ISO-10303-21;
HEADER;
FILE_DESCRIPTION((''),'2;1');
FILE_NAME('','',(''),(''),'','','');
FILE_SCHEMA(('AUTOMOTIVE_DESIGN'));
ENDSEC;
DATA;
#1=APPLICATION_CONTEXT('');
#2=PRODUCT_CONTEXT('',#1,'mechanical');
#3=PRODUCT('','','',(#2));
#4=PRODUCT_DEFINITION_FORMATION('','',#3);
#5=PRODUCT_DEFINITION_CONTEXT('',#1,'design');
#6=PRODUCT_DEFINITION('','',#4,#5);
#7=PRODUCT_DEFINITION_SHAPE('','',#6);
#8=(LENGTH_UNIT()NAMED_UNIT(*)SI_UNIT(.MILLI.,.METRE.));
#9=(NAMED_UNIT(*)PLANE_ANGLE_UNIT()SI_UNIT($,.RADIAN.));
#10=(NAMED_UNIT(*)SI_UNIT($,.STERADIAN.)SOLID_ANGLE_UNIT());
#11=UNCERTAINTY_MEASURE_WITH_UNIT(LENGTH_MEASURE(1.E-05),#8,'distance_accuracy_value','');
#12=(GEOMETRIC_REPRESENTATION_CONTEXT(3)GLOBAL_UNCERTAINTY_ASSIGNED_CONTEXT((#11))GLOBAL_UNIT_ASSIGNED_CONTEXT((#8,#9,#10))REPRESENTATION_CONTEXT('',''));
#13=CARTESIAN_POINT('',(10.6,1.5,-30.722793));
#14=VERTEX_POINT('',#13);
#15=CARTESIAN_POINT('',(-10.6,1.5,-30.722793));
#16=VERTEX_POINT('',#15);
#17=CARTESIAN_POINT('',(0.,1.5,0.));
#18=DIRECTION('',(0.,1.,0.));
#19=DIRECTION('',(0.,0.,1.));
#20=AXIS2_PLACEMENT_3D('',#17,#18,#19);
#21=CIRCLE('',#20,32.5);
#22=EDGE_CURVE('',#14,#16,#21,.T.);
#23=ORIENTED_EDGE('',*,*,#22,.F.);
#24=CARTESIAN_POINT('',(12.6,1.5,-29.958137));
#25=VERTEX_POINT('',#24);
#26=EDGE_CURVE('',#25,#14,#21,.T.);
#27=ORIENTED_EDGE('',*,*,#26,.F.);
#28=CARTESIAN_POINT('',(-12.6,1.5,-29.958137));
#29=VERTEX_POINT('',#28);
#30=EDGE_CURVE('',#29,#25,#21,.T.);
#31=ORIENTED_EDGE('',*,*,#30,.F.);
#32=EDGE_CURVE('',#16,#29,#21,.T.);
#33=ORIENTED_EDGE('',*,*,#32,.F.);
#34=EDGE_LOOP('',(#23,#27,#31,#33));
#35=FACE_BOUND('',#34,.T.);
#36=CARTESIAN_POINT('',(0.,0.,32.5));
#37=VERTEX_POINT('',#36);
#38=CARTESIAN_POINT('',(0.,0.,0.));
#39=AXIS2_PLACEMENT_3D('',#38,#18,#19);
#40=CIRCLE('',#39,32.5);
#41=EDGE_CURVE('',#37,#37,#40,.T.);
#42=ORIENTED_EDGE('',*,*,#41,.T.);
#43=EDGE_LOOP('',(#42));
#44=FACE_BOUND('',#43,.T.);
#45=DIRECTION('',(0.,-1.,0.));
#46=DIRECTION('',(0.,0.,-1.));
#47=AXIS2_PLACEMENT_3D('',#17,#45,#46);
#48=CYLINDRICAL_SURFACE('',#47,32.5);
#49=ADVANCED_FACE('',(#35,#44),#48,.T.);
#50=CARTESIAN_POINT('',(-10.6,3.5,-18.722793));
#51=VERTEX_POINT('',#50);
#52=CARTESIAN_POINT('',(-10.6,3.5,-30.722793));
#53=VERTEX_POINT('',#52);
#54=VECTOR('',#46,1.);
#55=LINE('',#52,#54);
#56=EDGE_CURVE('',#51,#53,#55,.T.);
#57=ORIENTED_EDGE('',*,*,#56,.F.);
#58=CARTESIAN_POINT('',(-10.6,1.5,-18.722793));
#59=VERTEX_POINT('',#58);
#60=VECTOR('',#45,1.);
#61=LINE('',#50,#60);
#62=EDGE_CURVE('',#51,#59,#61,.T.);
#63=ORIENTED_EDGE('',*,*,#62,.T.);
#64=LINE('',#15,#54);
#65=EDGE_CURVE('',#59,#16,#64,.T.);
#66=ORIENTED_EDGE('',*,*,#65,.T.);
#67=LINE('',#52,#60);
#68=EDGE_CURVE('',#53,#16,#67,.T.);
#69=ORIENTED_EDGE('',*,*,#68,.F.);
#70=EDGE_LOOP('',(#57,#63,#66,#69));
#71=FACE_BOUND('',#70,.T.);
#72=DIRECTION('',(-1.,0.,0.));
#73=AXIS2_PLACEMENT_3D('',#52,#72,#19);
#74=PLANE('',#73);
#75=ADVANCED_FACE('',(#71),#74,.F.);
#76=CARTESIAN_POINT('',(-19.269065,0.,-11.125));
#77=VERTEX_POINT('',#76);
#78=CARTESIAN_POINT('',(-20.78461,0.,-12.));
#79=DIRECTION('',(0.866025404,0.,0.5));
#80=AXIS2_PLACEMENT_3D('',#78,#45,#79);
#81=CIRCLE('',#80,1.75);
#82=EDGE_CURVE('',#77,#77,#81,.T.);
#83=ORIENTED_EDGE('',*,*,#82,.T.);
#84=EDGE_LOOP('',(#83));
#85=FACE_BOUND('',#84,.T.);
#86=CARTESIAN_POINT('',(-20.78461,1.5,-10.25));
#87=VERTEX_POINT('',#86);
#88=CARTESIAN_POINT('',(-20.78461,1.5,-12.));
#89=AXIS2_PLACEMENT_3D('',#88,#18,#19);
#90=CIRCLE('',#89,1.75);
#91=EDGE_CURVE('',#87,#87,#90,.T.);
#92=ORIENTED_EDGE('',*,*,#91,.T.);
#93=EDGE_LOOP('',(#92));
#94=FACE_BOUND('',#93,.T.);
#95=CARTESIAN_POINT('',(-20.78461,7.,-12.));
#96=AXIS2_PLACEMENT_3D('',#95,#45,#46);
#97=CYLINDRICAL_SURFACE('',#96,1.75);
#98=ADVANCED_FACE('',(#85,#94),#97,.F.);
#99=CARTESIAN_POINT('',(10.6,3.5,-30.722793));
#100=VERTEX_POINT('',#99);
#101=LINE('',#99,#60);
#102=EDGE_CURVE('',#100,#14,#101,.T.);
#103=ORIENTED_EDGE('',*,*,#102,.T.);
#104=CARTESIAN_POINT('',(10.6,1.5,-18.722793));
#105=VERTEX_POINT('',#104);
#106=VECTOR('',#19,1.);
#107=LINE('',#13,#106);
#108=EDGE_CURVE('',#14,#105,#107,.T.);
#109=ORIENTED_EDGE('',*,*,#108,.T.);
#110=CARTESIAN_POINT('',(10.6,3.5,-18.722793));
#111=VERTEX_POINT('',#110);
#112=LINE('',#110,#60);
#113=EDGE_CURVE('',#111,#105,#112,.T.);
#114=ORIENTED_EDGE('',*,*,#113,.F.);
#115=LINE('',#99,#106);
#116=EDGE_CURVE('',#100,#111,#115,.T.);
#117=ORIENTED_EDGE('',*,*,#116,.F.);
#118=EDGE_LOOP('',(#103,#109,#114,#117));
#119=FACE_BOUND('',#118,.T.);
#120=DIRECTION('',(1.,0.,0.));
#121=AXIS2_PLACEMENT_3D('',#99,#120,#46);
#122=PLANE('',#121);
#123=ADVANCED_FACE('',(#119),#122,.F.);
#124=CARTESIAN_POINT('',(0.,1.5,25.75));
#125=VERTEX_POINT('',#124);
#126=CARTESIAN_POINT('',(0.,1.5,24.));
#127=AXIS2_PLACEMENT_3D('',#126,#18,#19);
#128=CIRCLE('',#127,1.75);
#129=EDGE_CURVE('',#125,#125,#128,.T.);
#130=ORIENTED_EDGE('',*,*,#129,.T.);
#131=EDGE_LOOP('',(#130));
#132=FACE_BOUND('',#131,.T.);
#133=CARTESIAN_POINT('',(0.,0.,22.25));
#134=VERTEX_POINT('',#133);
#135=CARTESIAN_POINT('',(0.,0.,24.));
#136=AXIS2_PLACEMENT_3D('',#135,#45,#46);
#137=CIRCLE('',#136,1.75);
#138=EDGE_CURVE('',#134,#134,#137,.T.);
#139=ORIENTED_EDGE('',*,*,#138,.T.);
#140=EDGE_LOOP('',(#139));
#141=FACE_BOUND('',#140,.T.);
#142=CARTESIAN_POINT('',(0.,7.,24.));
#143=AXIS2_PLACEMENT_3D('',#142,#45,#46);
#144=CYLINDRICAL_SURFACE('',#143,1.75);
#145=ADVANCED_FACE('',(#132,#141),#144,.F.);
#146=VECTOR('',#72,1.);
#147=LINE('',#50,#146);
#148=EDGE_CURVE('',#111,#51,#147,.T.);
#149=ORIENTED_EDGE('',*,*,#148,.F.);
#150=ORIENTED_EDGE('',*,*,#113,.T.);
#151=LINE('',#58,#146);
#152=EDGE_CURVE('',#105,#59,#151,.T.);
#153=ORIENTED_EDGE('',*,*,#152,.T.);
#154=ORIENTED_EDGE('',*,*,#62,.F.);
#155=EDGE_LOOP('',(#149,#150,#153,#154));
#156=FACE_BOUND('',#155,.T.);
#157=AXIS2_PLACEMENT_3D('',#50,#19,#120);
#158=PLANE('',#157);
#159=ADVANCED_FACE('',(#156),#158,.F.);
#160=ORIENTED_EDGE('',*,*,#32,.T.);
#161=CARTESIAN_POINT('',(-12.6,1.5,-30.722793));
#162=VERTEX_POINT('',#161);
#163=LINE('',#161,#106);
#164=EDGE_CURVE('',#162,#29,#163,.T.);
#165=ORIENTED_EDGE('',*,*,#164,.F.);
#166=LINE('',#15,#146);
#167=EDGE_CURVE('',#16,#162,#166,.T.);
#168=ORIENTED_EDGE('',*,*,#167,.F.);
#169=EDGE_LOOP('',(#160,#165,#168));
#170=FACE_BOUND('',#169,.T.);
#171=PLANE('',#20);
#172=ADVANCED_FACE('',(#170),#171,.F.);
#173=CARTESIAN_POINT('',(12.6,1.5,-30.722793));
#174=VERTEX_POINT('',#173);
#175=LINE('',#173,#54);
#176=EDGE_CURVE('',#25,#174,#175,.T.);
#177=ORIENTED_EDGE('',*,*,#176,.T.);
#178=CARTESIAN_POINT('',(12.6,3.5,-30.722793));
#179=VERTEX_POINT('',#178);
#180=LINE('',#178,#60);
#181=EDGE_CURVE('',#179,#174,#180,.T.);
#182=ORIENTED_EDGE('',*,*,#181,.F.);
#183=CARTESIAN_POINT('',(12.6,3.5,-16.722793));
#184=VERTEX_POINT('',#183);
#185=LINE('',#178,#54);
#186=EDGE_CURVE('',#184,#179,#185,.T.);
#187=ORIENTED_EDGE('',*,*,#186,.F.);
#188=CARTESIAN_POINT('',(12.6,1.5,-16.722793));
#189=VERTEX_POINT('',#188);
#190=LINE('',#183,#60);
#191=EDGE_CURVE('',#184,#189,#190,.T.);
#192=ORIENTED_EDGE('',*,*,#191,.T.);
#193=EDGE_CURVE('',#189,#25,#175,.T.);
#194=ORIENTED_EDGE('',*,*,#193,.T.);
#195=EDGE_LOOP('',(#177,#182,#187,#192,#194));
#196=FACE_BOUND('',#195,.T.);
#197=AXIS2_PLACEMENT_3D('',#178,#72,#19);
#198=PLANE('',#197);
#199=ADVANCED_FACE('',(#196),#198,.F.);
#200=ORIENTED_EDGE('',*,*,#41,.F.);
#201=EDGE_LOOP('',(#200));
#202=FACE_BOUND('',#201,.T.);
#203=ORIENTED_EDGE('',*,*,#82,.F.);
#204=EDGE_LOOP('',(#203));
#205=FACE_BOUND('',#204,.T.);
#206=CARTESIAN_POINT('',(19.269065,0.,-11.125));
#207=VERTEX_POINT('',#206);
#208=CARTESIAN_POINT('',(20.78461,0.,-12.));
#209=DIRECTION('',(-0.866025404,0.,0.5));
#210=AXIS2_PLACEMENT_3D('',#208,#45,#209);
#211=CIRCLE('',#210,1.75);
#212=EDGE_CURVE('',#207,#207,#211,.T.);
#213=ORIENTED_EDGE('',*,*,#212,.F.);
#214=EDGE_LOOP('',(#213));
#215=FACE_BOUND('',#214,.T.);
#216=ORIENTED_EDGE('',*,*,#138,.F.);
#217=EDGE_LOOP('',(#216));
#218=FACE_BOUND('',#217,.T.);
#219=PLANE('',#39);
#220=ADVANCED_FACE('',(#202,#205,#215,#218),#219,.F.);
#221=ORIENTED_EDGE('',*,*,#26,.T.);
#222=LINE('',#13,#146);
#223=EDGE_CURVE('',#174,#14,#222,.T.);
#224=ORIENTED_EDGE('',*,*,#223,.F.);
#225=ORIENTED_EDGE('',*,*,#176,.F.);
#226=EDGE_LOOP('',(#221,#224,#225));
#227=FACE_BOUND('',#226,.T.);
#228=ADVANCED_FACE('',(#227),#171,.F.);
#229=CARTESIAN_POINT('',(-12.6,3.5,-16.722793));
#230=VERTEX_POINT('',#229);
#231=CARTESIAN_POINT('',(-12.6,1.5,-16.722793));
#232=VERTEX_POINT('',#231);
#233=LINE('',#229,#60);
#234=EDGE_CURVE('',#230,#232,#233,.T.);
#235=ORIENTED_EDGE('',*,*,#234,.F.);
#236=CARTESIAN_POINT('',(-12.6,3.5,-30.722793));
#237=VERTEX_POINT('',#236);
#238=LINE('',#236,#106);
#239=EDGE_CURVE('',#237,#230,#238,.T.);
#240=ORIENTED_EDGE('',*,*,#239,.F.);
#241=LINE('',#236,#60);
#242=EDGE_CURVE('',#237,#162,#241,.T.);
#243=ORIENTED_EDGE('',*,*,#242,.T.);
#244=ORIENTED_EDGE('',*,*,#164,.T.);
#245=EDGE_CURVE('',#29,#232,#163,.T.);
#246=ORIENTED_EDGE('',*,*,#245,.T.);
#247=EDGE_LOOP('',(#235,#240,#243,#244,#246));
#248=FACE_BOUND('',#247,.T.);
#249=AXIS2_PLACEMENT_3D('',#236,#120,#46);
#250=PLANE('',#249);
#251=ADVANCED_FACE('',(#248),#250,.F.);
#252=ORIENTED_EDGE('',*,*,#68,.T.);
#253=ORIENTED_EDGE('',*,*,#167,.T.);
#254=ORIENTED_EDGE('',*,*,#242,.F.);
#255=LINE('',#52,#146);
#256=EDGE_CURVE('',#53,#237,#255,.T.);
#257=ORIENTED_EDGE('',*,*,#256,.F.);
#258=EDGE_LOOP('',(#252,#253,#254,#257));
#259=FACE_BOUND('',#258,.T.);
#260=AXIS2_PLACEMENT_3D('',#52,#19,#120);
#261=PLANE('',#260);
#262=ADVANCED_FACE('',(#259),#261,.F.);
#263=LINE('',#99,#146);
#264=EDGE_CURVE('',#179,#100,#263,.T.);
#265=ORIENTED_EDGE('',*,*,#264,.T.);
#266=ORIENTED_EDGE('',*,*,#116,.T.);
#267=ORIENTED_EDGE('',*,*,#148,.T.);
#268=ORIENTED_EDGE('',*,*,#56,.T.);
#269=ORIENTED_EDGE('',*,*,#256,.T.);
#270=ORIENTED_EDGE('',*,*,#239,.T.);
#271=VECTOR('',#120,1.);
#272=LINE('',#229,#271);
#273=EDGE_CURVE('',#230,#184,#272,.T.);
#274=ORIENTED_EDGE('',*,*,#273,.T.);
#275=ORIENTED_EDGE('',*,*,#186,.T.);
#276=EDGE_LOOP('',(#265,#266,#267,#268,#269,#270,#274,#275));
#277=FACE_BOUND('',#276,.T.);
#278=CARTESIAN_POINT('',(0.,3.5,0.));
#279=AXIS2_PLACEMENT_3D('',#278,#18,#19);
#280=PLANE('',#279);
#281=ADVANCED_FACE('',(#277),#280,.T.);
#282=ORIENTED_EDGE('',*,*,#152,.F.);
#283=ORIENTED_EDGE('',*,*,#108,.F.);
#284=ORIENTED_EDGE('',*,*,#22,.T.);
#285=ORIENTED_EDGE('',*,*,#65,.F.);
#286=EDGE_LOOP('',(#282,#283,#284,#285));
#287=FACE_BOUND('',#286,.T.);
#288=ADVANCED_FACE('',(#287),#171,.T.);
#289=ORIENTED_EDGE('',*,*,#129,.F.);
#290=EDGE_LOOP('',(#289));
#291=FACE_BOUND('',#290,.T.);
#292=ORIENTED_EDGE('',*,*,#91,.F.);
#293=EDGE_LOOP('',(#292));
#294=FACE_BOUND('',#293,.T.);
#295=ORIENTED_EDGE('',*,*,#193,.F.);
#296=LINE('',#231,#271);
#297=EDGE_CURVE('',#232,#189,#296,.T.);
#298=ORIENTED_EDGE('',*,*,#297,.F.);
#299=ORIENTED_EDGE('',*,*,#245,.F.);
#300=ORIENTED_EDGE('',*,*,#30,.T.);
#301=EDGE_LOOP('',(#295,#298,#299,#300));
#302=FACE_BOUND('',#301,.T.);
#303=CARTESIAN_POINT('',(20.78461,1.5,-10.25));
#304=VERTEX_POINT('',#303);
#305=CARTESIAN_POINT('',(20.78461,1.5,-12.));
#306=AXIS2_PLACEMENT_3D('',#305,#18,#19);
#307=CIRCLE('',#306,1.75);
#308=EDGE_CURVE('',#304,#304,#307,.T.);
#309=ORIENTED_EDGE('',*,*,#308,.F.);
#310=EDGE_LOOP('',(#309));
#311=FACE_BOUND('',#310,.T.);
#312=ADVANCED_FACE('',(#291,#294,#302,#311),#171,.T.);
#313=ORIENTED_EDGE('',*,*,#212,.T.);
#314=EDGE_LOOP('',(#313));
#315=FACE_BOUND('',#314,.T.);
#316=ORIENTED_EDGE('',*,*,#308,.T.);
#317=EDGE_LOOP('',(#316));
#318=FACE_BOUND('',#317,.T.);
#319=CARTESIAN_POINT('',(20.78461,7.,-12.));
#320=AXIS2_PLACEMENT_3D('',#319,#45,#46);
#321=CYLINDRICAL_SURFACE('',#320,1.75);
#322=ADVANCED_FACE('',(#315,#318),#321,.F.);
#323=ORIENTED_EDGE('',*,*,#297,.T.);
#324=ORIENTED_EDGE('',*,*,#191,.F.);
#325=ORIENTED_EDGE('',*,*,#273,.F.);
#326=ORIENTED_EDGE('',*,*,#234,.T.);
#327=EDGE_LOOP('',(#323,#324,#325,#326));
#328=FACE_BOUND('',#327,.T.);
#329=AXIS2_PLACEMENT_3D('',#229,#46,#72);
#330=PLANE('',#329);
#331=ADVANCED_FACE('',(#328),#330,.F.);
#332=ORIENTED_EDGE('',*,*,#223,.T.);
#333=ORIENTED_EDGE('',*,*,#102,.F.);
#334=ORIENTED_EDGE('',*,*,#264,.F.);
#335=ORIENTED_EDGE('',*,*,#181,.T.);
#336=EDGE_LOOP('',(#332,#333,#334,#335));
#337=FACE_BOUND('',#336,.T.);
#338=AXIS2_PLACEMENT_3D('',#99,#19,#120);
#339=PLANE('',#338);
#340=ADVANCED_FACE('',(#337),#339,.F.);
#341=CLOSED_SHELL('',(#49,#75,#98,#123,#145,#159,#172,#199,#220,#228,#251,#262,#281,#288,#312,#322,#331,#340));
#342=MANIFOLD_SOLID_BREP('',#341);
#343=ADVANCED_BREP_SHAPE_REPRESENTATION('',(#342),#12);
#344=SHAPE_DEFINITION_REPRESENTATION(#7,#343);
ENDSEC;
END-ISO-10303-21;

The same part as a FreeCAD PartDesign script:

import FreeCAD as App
import Part
import Sketcher
from FreeCAD import Vector


def add_polygon(sketch, points):
    """Adds a closed chain of lines whose ends are joined by coincident constraints."""
    first, n = sketch.GeometryCount, len(points)
    for a, b in zip(points, points[1:] + points[:1]):
        sketch.addGeometry(Part.LineSegment(App.Vector(*a, 0), App.Vector(*b, 0)), False)
    for i in range(n):
        sketch.addConstraint(Sketcher.Constraint("Coincident", first + i, 2, first + (i + 1) % n, 1))

doc = App.newDocument("Part")
params = doc.addObject("Spreadsheet::Sheet", "Params")
for row, (alias, value) in enumerate([
    ("sketch1_diameter", "65 mm"),
    ("pad1_length", "1.5 mm"),
    ("sketch2_width", "2 mm"),
    ("sketch2_height", "14 mm"),
    ("sketch2_height2", "12 mm"),
    ("sketch2_width2", "25.2 mm"),
    ("pad2_length", "2 mm"),
    ("sketch3_diameter", "3.5 mm"),
    ("pocket1_length", "7 mm"),
], start=1):
    params.set(f"A{row}", alias)
    params.set(f"B{row}", "=" + value)
    params.setAlias(f"B{row}", alias)

body = doc.addObject("PartDesign::Body", "Body")

# Sketch on XZ plane
sketch1 = body.newObject("Sketcher::SketchObject", "Sketch")
sketch1.AttachmentSupport = (doc.getObject("XZ_Plane"), [""])
sketch1.MapMode = "FlatFace"
sketch1.addGeometry(Part.Circle(Vector(0, 0, 0), Vector(0, 0, 1), 32), False)
sketch1.addConstraint([
    Sketcher.Constraint("Coincident", 0, 3, -1, 1),
    Sketcher.Constraint("Diameter", 0, 65.0),
])
sketch1.setExpression("Constraints[1]", "Params.sketch1_diameter")
pad1 = body.newObject("PartDesign::Pad", "Pad")
pad1.Profile = sketch1
pad1.setExpression("Length", "Params.pad1_length")
pad1.Reversed = True

# Sketch on XZ plane
sketch2 = body.newObject("Sketcher::SketchObject", "Sketch001")
sketch2.AttachmentSupport = (doc.getObject("XZ_Plane"), [""])
sketch2.MapMode = "FlatFace"
sketch2.AttachmentOffset = App.Placement(Vector(0, 0, -1.5), App.Rotation())
add_polygon(sketch2, [(-12.6, -30.7), (-12.6, -16.7), (12.6, -16.7), (12.6, -30.7), (10.6, -30.7), (10.6, -18.7), (-10.6, -18.7), (-10.6, -30.7)])  # lines 0-7
sketch2.addConstraint([
    Sketcher.Constraint("Vertical", 0),
    Sketcher.Constraint("Horizontal", 1),
    Sketcher.Constraint("Vertical", 2),
    Sketcher.Constraint("Horizontal", 3),
    Sketcher.Constraint("Vertical", 4),
    Sketcher.Constraint("Horizontal", 5),
    Sketcher.Constraint("Vertical", 6),
    Sketcher.Constraint("Horizontal", 7),
    Sketcher.Constraint("Symmetric", 3, 2, 6, 2, -2),
    Sketcher.Constraint("Equal", 3, 7),
    Sketcher.Constraint("DistanceX", 3, 2, 3, 1, 2.0),
    Sketcher.Constraint("DistanceY", 0, 1, 0, 2, 14.0),
    Sketcher.Constraint("DistanceY", 4, 1, 4, 2, 12.0),
    Sketcher.Constraint("DistanceX", 1, 1, 1, 2, 25.2),
    Sketcher.Constraint("DistanceY", 0, 2, -1, 1, 16.722793),
])
sketch2.setExpression("Constraints[18]", "Params.sketch2_width")
sketch2.setExpression("Constraints[19]", "Params.sketch2_height")
sketch2.setExpression("Constraints[20]", "Params.sketch2_height2")
sketch2.setExpression("Constraints[21]", "Params.sketch2_width2")
pad2 = body.newObject("PartDesign::Pad", "Pad001")
pad2.Profile = sketch2
pad2.setExpression("Length", "Params.pad2_length")
pad2.Reversed = True

# Sketch on XZ plane
sketch3 = body.newObject("Sketcher::SketchObject", "Sketch002")
sketch3.AttachmentSupport = (doc.getObject("XZ_Plane"), [""])
sketch3.MapMode = "FlatFace"
sketch3.addGeometry(Part.Circle(Vector(0, 24, 0), Vector(0, 0, 1), 1.8), False)
sketch3.addConstraint([
    Sketcher.Constraint("PointOnObject", 0, 3, -2),
    Sketcher.Constraint("Diameter", 0, 3.5),
    Sketcher.Constraint("DistanceY", -1, 1, 0, 3, 24.0),
])
sketch3.setExpression("Constraints[1]", "Params.sketch3_diameter")
pocket1 = body.newObject("PartDesign::Pocket", "Pocket")
pocket1.Profile = sketch3
pocket1.setExpression("Length", "Params.pocket1_length")
doc.recompute()

polarpattern = body.newObject("PartDesign::PolarPattern", "PolarPattern")
polarpattern.Originals = [pocket1]
polarpattern.Axis = (doc.getObject("Y_Axis"), [""])
polarpattern.Angle = 360
polarpattern.Occurrences = 3
body.Tip = polarpattern

doc.recompute()
